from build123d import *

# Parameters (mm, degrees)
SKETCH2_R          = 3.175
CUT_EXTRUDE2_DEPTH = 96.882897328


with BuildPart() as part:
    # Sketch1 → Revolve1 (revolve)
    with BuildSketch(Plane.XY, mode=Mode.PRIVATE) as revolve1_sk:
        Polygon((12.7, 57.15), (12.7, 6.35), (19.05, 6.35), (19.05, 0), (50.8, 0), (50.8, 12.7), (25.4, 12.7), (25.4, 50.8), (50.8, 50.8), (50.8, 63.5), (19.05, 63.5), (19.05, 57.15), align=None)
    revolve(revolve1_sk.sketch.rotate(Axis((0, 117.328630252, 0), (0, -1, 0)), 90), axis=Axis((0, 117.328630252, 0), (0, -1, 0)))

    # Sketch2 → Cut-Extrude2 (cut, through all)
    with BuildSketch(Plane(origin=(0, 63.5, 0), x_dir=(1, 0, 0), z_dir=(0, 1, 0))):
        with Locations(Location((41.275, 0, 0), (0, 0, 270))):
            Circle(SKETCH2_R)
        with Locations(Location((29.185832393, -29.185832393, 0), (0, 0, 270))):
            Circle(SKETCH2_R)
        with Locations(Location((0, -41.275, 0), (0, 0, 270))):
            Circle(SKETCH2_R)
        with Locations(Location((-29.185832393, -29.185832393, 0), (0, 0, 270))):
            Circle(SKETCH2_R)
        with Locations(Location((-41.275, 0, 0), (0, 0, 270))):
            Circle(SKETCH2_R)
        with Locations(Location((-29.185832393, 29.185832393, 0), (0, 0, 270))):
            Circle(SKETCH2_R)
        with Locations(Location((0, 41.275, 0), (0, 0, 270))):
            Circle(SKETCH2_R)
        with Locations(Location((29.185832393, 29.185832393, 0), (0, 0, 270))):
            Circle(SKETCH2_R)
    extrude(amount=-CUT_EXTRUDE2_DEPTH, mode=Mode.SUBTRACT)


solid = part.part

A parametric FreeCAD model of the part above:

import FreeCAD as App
import Part
import Sketcher

V = App.Vector
Q = App.Units.Quantity


def add_polygon(sketch, points):
    """Adds a closed chain of lines whose ends are joined by coincident constraints."""
    first, n = sketch.GeometryCount, len(points)
    for a, b in zip(points, points[1:] + points[:1]):
        sketch.addGeometry(Part.LineSegment(App.Vector(*a, 0), App.Vector(*b, 0)), False)
    for i in range(n):
        sketch.addConstraint(Sketcher.Constraint("Coincident", first + i, 2, first + (i + 1) % n, 1))

doc = App.newDocument("Part")
body = doc.addObject("PartDesign::Body", "Body")

# Sketch on XY plane
sketch1 = body.newObject("Sketcher::SketchObject", "Sketch")
sketch1.AttachmentSupport = (doc.getObject("XY_Plane"), [""])
sketch1.MapMode = "FlatFace"
add_polygon(sketch1, [(13, 57), (13, 6), (19, 6), (19, 0), (51, 0), (51, 13), (25, 13), (25, 51), (51, 51), (51, 64), (19, 64), (19, 57)])  # lines 0-11
sketch1.addConstraint(Sketcher.Constraint("Vertical", 0))
sketch1.addConstraint(Sketcher.Constraint("Horizontal", 1))
sketch1.addConstraint(Sketcher.Constraint("Vertical", 2))
sketch1.addConstraint(Sketcher.Constraint("Horizontal", 3))
sketch1.addConstraint(Sketcher.Constraint("Vertical", 4))
sketch1.addConstraint(Sketcher.Constraint("Horizontal", 5))
sketch1.addConstraint(Sketcher.Constraint("Vertical", 6))
sketch1.addConstraint(Sketcher.Constraint("Horizontal", 7))
sketch1.addConstraint(Sketcher.Constraint("Vertical", 8))
sketch1.addConstraint(Sketcher.Constraint("Horizontal", 9))
sketch1.addConstraint(Sketcher.Constraint("Vertical", 10))
sketch1.addConstraint(Sketcher.Constraint("Horizontal", 11))
sketch1.addConstraint(Sketcher.Constraint("PointOnObject", 2, 2, -1))
sketch1.addConstraint(Sketcher.Constraint("Vertical", 4, 2, 7, 2))
sketch1.addConstraint(Sketcher.Constraint("Vertical", 2, 2, 9, 2))
sketch1.addConstraint(Sketcher.Constraint("Equal", 11, 2))
sketch1.addConstraint(Sketcher.Constraint("Equal", 4, 8))
sketch1.addConstraint(Sketcher.Constraint("Equal", 2, 10))
sketch1.addConstraint(Sketcher.Constraint("DistanceX", 5, 2, 5, 1, Q("1 in")))
sketch1.addConstraint(Sketcher.Constraint("DistanceY", 0, 2, 0, 1, Q("2 in")))
sketch1.addConstraint(Sketcher.Constraint("DistanceY", 4, 1, 4, 2, Q("0.5 in")))
sketch1.addConstraint(Sketcher.Constraint("DistanceY", 6, 1, 6, 2, Q("1.5 in")))
sketch1.addConstraint(Sketcher.Constraint("DistanceX", -1, 1, 3, 2, Q("2 in")))
sketch1.addConstraint(Sketcher.Constraint("DistanceX", 3, 1, 3, 2, Q("1.25 in")))
revolution = body.newObject("PartDesign::Revolution", "Revolution")
revolution.Profile = sketch1
revolution.ReferenceAxis = (sketch1, ["V_Axis"])
revolution.Angle = 360

# Sketch on XZ plane
sketch2 = body.newObject("Sketcher::SketchObject", "Sketch001")
sketch2.AttachmentSupport = (doc.getObject("XZ_Plane"), [""])
sketch2.MapMode = "FlatFace"
sketch2.AttachmentOffset = App.Placement(V(0, 0, -2.5 * 25.4), App.Rotation())
sketch2.addGeometry(Part.Circle(V(41.3, 0, 0), V(0, 0, 1), 3.2), False)
sketch2.addGeometry(Part.Circle(V(29.2, 29.2, 0), V(0, 0, 1), 3.2), False)
sketch2.addGeometry(Part.Circle(V(0, 41.3, 0), V(0, 0, 1), 3.2), False)
sketch2.addGeometry(Part.Circle(V(-29.2, 29.2, 0), V(0, 0, 1), 3.2), False)
sketch2.addGeometry(Part.Circle(V(-41.3, 0, 0), V(0, 0, 1), 3.2), False)
sketch2.addGeometry(Part.Circle(V(-29.2, -29.2, 0), V(0, 0, 1), 3.2), False)
sketch2.addGeometry(Part.Circle(V(0, -41.3, 0), V(0, 0, 1), 3.2), False)
sketch2.addGeometry(Part.Circle(V(29.2, -29.2, 0), V(0, 0, 1), 3.2), False)
sketch2.addConstraint(Sketcher.Constraint("Equal", 0, 1))
sketch2.addConstraint(Sketcher.Constraint("Equal", 1, 2))
sketch2.addConstraint(Sketcher.Constraint("Equal", 2, 3))
sketch2.addConstraint(Sketcher.Constraint("Equal", 3, 4))
sketch2.addConstraint(Sketcher.Constraint("Equal", 4, 5))
sketch2.addConstraint(Sketcher.Constraint("Equal", 5, 6))
sketch2.addConstraint(Sketcher.Constraint("Equal", 6, 7))
sketch2.addConstraint(Sketcher.Constraint("Symmetric", 0, 3, 4, 3, -1, 1))
sketch2.addConstraint(Sketcher.Constraint("Symmetric", 1, 3, 5, 3, -1, 1))
sketch2.addConstraint(Sketcher.Constraint("Symmetric", 2, 3, 6, 3, -1, 1))
sketch2.addConstraint(Sketcher.Constraint("Symmetric", 3, 3, 7, 3, -1, 1))
sketch2.addConstraint(Sketcher.Constraint("Symmetric", 1, 3, 3, 3, -2))
sketch2.addConstraint(Sketcher.Constraint("PointOnObject", 0, 3, -1))
sketch2.addConstraint(Sketcher.Constraint("PointOnObject", 2, 3, -2))
sketch2.addConstraint(Sketcher.Constraint("Diameter", 0, Q("0.25 in")))
sketch2.addConstraint(Sketcher.Constraint("DistanceX", 4, 3, 0, 3, Q("3.25 in")))
sketch2.addConstraint(Sketcher.Constraint("DistanceY", -1, 1, 2, 3, Q("1.625 in")))
sketch2.addConstraint(Sketcher.Constraint("DistanceX", -1, 1, 1, 3, Q("29.185832 mm")))
sketch2.addConstraint(Sketcher.Constraint("DistanceY", -1, 1, 1, 3, Q("29.185832 mm")))
pocket1 = body.newObject("PartDesign::Pocket", "Pocket")
pocket1.Profile = sketch2
pocket1.Type = "ThroughAll"
pocket1.Reversed = True

doc.recompute()
